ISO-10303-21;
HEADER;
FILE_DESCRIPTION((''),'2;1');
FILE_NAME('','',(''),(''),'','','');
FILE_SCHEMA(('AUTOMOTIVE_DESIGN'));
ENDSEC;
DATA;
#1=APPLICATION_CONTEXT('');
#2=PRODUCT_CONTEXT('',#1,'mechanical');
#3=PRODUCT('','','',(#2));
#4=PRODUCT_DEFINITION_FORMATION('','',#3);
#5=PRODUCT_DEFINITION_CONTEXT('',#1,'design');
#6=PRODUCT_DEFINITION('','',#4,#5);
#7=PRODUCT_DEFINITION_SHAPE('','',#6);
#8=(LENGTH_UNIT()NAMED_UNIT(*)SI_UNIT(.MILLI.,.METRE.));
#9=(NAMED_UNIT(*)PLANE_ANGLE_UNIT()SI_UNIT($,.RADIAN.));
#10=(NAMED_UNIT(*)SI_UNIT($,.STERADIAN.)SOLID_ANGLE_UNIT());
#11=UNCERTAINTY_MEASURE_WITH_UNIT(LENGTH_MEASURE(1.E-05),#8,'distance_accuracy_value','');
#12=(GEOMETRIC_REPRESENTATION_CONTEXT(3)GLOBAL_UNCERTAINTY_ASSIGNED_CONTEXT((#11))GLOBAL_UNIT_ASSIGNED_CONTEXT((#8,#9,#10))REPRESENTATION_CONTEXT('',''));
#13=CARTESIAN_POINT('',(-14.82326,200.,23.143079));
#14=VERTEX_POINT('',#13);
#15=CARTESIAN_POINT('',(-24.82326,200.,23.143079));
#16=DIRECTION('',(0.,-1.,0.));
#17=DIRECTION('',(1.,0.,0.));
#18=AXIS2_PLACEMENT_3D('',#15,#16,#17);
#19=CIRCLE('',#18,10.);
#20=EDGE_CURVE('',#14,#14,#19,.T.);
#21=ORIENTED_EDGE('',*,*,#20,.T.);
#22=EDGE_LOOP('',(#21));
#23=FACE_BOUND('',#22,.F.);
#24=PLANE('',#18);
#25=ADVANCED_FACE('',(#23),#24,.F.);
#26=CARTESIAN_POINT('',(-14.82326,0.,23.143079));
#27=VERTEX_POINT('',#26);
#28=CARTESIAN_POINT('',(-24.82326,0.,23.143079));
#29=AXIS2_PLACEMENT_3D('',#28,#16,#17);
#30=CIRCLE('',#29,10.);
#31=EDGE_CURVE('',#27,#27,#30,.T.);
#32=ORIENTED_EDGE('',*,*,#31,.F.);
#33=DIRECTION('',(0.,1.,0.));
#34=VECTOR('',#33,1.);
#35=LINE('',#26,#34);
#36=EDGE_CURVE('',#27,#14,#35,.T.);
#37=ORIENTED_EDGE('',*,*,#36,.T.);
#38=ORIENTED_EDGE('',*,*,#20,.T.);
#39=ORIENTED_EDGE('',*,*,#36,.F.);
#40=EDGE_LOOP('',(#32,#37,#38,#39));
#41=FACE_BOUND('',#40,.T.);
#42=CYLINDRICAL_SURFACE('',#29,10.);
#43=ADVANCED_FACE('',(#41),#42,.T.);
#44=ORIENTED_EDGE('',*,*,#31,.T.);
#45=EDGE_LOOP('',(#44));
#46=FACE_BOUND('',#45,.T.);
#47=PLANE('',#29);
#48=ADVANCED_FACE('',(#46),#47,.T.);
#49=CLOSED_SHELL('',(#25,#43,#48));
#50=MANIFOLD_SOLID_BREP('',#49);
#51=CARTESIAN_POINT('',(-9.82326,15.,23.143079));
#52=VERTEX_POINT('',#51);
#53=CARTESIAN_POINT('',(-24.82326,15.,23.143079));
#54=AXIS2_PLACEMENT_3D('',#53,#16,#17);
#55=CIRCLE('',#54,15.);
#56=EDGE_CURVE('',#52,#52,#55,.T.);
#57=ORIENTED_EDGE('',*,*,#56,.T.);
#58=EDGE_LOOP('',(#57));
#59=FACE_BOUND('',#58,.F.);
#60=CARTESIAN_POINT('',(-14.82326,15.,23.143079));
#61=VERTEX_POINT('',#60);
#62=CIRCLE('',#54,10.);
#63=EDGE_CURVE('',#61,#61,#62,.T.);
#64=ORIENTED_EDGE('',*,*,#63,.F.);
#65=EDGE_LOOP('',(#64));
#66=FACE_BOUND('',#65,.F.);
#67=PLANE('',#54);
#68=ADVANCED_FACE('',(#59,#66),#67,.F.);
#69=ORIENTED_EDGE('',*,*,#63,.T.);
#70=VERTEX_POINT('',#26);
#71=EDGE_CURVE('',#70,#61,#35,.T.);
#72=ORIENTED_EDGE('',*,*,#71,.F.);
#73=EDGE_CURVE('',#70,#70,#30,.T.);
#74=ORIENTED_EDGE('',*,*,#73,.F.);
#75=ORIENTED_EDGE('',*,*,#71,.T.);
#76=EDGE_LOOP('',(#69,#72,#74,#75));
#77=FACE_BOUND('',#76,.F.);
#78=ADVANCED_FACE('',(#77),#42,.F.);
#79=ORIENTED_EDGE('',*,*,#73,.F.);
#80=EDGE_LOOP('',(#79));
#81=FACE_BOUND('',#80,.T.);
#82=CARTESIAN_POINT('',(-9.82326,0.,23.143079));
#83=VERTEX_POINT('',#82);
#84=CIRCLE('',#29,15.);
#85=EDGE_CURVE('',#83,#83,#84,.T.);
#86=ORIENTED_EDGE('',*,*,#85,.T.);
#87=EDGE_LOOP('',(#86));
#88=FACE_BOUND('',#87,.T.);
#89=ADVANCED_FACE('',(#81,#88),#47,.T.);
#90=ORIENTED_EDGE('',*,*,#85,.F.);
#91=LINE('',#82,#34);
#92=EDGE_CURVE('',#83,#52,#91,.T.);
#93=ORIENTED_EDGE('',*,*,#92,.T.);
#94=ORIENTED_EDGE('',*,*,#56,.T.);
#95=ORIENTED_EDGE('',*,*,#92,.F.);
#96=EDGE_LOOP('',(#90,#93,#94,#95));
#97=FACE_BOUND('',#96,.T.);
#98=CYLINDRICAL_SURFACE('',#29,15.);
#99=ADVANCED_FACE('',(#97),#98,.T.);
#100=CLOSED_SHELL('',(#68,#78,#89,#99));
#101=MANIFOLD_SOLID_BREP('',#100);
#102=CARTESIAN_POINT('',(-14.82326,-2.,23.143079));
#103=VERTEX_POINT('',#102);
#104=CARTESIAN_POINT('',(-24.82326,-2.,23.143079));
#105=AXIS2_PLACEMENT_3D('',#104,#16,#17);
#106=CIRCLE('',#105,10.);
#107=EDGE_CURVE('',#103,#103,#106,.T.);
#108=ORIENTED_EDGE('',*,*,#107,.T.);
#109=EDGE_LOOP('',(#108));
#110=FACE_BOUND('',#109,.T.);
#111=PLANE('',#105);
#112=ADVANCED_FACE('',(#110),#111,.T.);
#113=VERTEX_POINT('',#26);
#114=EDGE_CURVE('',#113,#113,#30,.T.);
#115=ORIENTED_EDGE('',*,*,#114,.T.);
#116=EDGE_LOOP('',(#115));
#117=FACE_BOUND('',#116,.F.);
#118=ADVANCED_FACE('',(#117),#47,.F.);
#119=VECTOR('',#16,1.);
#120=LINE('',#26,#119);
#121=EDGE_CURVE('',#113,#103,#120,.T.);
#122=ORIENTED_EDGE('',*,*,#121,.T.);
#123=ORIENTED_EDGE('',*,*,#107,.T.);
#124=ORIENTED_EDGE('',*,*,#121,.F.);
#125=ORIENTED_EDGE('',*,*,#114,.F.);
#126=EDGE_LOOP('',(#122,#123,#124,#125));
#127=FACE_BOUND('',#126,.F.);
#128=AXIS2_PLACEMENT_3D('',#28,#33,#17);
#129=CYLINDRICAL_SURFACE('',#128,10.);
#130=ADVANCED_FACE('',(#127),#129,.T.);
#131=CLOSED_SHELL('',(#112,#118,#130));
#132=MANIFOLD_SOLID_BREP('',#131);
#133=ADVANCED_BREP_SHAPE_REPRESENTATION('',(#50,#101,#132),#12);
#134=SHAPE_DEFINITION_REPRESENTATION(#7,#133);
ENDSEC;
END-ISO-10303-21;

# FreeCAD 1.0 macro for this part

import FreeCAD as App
import Part
import Sketcher
from FreeCAD import Vector
Q = App.Units.Quantity

doc = App.newDocument("Part")
body = doc.addObject("PartDesign::Body", "Body")

# Sketch on XZ plane
sketch1 = body.newObject("Sketcher::SketchObject", "Sketch")
sketch1.AttachmentSupport = (doc.getObject("XZ_Plane"), [""])
sketch1.MapMode = "FlatFace"
sketch1.addGeometry(Part.Circle(Vector(-25, 23, 0), Vector(0, 0, 1), 10), False)
sketch1.addConstraint(Sketcher.Constraint("Diameter", 0, Q("20 mm")))
sketch1.addConstraint(Sketcher.Constraint("DistanceX", 0, 3, -1, 1, Q("24.82326 mm")))
sketch1.addConstraint(Sketcher.Constraint("DistanceY", -1, 1, 0, 3, Q("23.143079 mm")))
pad1 = body.newObject("PartDesign::Pad", "Pad")
pad1.Profile = sketch1
pad1.Length = 2
body2 = doc.addObject("PartDesign::Body", "Body001")

# Sketch on XZ plane
sketch2 = body2.newObject("Sketcher::SketchObject", "Sketch001")
sketch2.AttachmentSupport = (doc.getObject("XZ_Plane001"), [""])
sketch2.MapMode = "FlatFace"
sketch2.addGeometry(Part.Circle(Vector(-25, 23, 0), Vector(0, 0, 1), 15), False)
sketch2.addGeometry(Part.Circle(Vector(-25, 23, 0), Vector(0, 0, 1), 10), False)
sketch2.addConstraint(Sketcher.Constraint("Coincident", 1, 3, 0, 3))
sketch2.addConstraint(Sketcher.Constraint("Diameter", 0, Q("30 mm")))
sketch2.addConstraint(Sketcher.Constraint("Diameter", 1, Q("20 mm")))
sketch2.addConstraint(Sketcher.Constraint("DistanceX", 0, 3, -1, 1, Q("24.82326 mm")))
sketch2.addConstraint(Sketcher.Constraint("DistanceY", -1, 1, 0, 3, Q("23.143079 mm")))
pad2 = body2.newObject("PartDesign::Pad", "Pad001")
pad2.Profile = sketch2
pad2.Length = 15
pad2.Reversed = True
body3 = doc.addObject("PartDesign::Body", "Body002")

# Sketch on XZ plane
sketch3 = body3.newObject("Sketcher::SketchObject", "Sketch002")
sketch3.AttachmentSupport = (doc.getObject("XZ_Plane002"), [""])
sketch3.MapMode = "FlatFace"
sketch3.addGeometry(Part.Circle(Vector(-25, 23, 0), Vector(0, 0, 1), 10), False)
sketch3.addConstraint(Sketcher.Constraint("Diameter", 0, Q("20 mm")))
sketch3.addConstraint(Sketcher.Constraint("DistanceX", 0, 3, -1, 1, Q("24.82326 mm")))
sketch3.addConstraint(Sketcher.Constraint("DistanceY", -1, 1, 0, 3, Q("23.143079 mm")))
pad3 = body3.newObject("PartDesign::Pad", "Pad002")
pad3.Profile = sketch3
pad3.Length = 200
pad3.Reversed = True

doc.recompute()
